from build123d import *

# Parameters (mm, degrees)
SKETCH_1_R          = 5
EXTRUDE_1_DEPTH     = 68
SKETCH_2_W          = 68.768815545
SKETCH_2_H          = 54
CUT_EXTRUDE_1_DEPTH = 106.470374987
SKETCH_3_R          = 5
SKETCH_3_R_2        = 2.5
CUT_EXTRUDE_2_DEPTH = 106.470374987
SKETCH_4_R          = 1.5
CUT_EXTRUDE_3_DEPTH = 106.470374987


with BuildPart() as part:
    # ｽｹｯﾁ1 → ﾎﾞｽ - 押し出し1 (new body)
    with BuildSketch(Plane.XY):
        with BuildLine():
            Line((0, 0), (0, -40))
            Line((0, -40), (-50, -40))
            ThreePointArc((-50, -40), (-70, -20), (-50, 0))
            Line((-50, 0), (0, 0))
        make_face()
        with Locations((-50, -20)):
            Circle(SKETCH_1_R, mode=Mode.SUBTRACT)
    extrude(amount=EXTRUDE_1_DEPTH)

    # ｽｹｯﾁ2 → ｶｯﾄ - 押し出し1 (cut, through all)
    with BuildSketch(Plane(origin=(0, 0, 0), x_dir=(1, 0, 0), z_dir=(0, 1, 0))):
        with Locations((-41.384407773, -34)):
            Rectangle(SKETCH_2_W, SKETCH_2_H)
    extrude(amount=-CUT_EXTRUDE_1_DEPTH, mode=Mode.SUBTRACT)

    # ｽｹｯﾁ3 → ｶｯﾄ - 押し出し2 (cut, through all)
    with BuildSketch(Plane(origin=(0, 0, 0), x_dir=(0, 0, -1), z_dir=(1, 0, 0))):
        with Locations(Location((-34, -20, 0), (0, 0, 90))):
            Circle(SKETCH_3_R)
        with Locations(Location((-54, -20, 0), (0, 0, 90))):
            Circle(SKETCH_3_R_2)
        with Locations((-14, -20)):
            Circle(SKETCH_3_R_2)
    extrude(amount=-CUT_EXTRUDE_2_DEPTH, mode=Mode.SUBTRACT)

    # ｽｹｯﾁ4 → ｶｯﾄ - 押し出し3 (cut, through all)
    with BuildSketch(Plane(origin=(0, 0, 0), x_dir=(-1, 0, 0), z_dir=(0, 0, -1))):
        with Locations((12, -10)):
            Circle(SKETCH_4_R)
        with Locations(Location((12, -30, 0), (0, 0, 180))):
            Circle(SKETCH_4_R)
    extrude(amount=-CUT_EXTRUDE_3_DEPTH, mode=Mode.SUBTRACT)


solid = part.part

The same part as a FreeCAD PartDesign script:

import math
import FreeCAD as App
import Part
import Sketcher

V = App.Vector
Q = App.Units.Quantity


def add_polygon(sketch, points):
    """Adds a closed chain of lines whose ends are joined by coincident constraints."""
    first, n = sketch.GeometryCount, len(points)
    for a, b in zip(points, points[1:] + points[:1]):
        sketch.addGeometry(Part.LineSegment(App.Vector(*a, 0), App.Vector(*b, 0)), False)
    for i in range(n):
        sketch.addConstraint(Sketcher.Constraint("Coincident", first + i, 2, first + (i + 1) % n, 1))

doc = App.newDocument("Part")
body = doc.addObject("PartDesign::Body", "Body")

sketch1 = doc.addObject("Sketcher::SketchObject", "Sketch")
body.addObject(sketch1)
sketch1.AttachmentSupport = (doc.XY_Plane, [""])
sketch1.MapMode = "FlatFace"
sketch1.addGeometry(Part.LineSegment(V(0, -40, 0), V(0, 0, 0)), False)
sketch1.addGeometry(Part.LineSegment(V(0, 0, 0), V(-50, 0, 0)), False)
sketch1.addGeometry(Part.ArcOfCircle(Part.Circle(V(-50, -20, 0), V(0, 0, 1), 20), math.radians(90), math.radians(270)), False)
sketch1.addGeometry(Part.LineSegment(V(-50, -40, 0), V(0, -40, 0)), False)
sketch1.addGeometry(Part.Circle(V(-50, -20, 0), V(0, 0, 1), 5), False)
sketch1.addConstraint(Sketcher.Constraint("Coincident", 0, 2, 1, 1))
sketch1.addConstraint(Sketcher.Constraint("Tangent", 1, 2, 2, 1))
sketch1.addConstraint(Sketcher.Constraint("Tangent", 2, 2, 3, 1))
sketch1.addConstraint(Sketcher.Constraint("Coincident", 3, 2, 0, 1))
sketch1.addConstraint(Sketcher.Constraint("Vertical", 0))
sketch1.addConstraint(Sketcher.Constraint("Horizontal", 1))
sketch1.addConstraint(Sketcher.Constraint("Horizontal", 3))
sketch1.addConstraint(Sketcher.Constraint("Coincident", 0, 2, -1, 1))
sketch1.addConstraint(Sketcher.Constraint("Coincident", 4, 3, 2, 3))
sketch1.addConstraint(Sketcher.Constraint("Diameter", 4, Q("10 mm")))
sketch1.addConstraint(Sketcher.Constraint("Radius", 2, Q("20 mm")))
sketch1.addConstraint(Sketcher.Constraint("DistanceX", 1, 2, 1, 1, Q("50 mm")))
pad1 = doc.addObject("PartDesign::Pad", "Pad")
body.addObject(pad1)
pad1.Profile = sketch1
pad1.Length = 68

sketch2 = doc.addObject("Sketcher::SketchObject", "Sketch001")
body.addObject(sketch2)
sketch2.AttachmentSupport = (doc.XZ_Plane, [""])
sketch2.MapMode = "FlatFace"
add_polygon(sketch2, [(-76, 7), (-76, 61), (-7, 61), (-7, 7)])
sketch2.addConstraint(Sketcher.Constraint("Vertical", 0))
sketch2.addConstraint(Sketcher.Constraint("Horizontal", 1))
sketch2.addConstraint(Sketcher.Constraint("Vertical", 2))
sketch2.addConstraint(Sketcher.Constraint("Horizontal", 3))
sketch2.addConstraint(Sketcher.Constraint("DistanceY", 0, 1, 0, 2, Q("54 mm")))
sketch2.addConstraint(Sketcher.Constraint("DistanceY", -1, 1, 0, 2, Q("61 mm")))
sketch2.addConstraint(Sketcher.Constraint("DistanceX", 1, 2, -1, 1, Q("7 mm")))
sketch2.addConstraint(Sketcher.Constraint("DistanceX", 1, 1, 1, 2, Q("68.768816 mm")))
pocket1 = doc.addObject("PartDesign::Pocket", "Pocket")
body.addObject(pocket1)
pocket1.Profile = sketch2
pocket1.Type = "ThroughAll"
pocket1.Reversed = True

sketch3 = doc.addObject("Sketcher::SketchObject", "Sketch002")
body.addObject(sketch3)
sketch3.AttachmentSupport = (doc.YZ_Plane, [""])
sketch3.MapMode = "FlatFace"
sketch3.addGeometry(Part.Circle(V(-20, 34, 0), V(0, 0, 1), 5), False)
sketch3.addGeometry(Part.Circle(V(-20, 54, 0), V(0, 0, 1), 2.5), False)
sketch3.addGeometry(Part.Circle(V(-20, 14, 0), V(0, 0, 1), 2.5), False)
sketch3.addConstraint(Sketcher.Constraint("Equal", 1, 2))
sketch3.addConstraint(Sketcher.Constraint("Vertical", 0, 3, 1, 3))
sketch3.addConstraint(Sketcher.Constraint("Vertical", 1, 3, 2, 3))
sketch3.addConstraint(Sketcher.Constraint("Diameter", 0, Q("10 mm")))
sketch3.addConstraint(Sketcher.Constraint("Diameter", 1, Q("5 mm")))
sketch3.addConstraint(Sketcher.Constraint("DistanceX", 0, 3, -1, 1, Q("20 mm")))
sketch3.addConstraint(Sketcher.Constraint("DistanceY", -1, 1, 0, 3, Q("34 mm")))
sketch3.addConstraint(Sketcher.Constraint("DistanceY", -1, 1, 1, 3, Q("54 mm")))
sketch3.addConstraint(Sketcher.Constraint("DistanceY", -1, 1, 2, 3, Q("14 mm")))
pocket2 = doc.addObject("PartDesign::Pocket", "Pocket001")
body.addObject(pocket2)
pocket2.Profile = sketch3
pocket2.Type = "ThroughAll"

sketch4 = doc.addObject("Sketcher::SketchObject", "Sketch003")
body.addObject(sketch4)
sketch4.AttachmentSupport = (doc.XY_Plane, [""])
sketch4.MapMode = "FlatFace"
sketch4.addGeometry(Part.Circle(V(-12, -10, 0), V(0, 0, 1), 1.5), False)
sketch4.addGeometry(Part.Circle(V(-12, -30, 0), V(0, 0, 1), 1.5), False)
sketch4.addConstraint(Sketcher.Constraint("Equal", 0, 1))
sketch4.addConstraint(Sketcher.Constraint("Vertical", 0, 3, 1, 3))
sketch4.addConstraint(Sketcher.Constraint("Diameter", 0, Q("3 mm")))
sketch4.addConstraint(Sketcher.Constraint("DistanceX", 0, 3, -1, 1, Q("12 mm")))
sketch4.addConstraint(Sketcher.Constraint("DistanceY", 0, 3, -1, 1, Q("10 mm")))
sketch4.addConstraint(Sketcher.Constraint("DistanceY", 1, 3, -1, 1, Q("30 mm")))
pocket3 = doc.addObject("PartDesign::Pocket", "Pocket002")
body.addObject(pocket3)
pocket3.Profile = sketch4
pocket3.Type = "ThroughAll"
pocket3.Reversed = True

doc.recompute()
